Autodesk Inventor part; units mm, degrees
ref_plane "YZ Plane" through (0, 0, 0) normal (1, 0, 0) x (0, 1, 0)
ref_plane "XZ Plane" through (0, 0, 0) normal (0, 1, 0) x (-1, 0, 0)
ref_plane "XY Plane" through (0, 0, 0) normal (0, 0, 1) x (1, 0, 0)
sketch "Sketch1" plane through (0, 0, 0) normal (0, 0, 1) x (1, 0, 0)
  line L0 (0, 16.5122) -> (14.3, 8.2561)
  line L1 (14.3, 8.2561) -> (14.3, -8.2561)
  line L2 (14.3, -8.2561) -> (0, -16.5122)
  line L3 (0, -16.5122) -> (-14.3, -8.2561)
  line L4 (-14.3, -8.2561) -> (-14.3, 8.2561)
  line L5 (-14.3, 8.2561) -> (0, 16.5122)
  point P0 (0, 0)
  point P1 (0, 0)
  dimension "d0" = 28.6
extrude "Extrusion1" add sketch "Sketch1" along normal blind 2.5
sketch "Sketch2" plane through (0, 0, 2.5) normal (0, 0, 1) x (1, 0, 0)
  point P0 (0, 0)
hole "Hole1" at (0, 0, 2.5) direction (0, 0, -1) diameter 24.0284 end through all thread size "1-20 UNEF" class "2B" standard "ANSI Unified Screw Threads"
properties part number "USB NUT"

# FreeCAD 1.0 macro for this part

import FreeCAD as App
import Part
import Sketcher
from FreeCAD import Vector
Q = App.Units.Quantity

doc = App.newDocument("Part")
params = doc.addObject("Spreadsheet::Sheet", "Params")
for row, (alias, value) in enumerate([
    ("pad1_length", "2.5 mm"),
    ("hole_diameter", "24.0284 mm"),
], start=1):
    params.set(f"A{row}", alias)
    params.set(f"B{row}", "=" + value)
    params.setAlias(f"B{row}", alias)

body = doc.addObject("PartDesign::Body", "Body")

# Sketch on XY plane
sketch1 = body.newObject("Sketcher::SketchObject", "Sketch")
sketch1.AttachmentSupport = (doc.getObject("XY_Plane"), [""])
sketch1.MapMode = "FlatFace"
sketch1.addGeometry([
    Part.LineSegment(Vector(14, 8, 0), Vector(0, 17, 0)),  # 0
    Part.LineSegment(Vector(0, 17, 0), Vector(-14, 8, 0)),  # 1
    Part.LineSegment(Vector(-14, 8, 0), Vector(-14, -8, 0)),  # 2
    Part.LineSegment(Vector(-14, -8, 0), Vector(0, -17, 0)),  # 3
    Part.LineSegment(Vector(0, -17, 0), Vector(14, -8, 0)),  # 4
    Part.LineSegment(Vector(14, -8, 0), Vector(14, 8, 0)),  # 5
], False)
sketch1.addConstraint([
    Sketcher.Constraint("Coincident", 0, 2, 1, 1),
    Sketcher.Constraint("Coincident", 1, 2, 2, 1),
    Sketcher.Constraint("Coincident", 2, 2, 3, 1),
    Sketcher.Constraint("Coincident", 3, 2, 4, 1),
    Sketcher.Constraint("Coincident", 4, 2, 5, 1),
    Sketcher.Constraint("Coincident", 5, 2, 0, 1),
    Sketcher.Constraint("Vertical", 2),
    Sketcher.Constraint("Vertical", 5),
    Sketcher.Constraint("Symmetric", 0, 2, 3, 2, -1, 1),
    Sketcher.Constraint("Symmetric", 1, 2, 4, 2, -1, 1),
    Sketcher.Constraint("PointOnObject", 0, 2, -2),
    Sketcher.Constraint("Parallel", 0, 3),
    Sketcher.Constraint("Horizontal", 2, 2, 4, 2),
    Sketcher.Constraint("DistanceX", 2, 2, 4, 2, 28.6),
    Sketcher.Constraint("Angle", 0, Q("150 deg")),
    Sketcher.Constraint("DistanceY", 2, 2, 2, 1, 16.5122),
])
pad1 = body.newObject("PartDesign::Pad", "Pad")
pad1.Profile = sketch1
pad1.setExpression("Length", "Params.pad1_length")

# Sketch on XY plane
sketch2 = body.newObject("Sketcher::SketchObject", "Sketch001")
sketch2.AttachmentSupport = (doc.getObject("XY_Plane"), [""])
sketch2.MapMode = "FlatFace"
sketch2.AttachmentOffset = App.Placement(Vector(0, 0, 2.5), App.Rotation())
sketch2.addGeometry(Part.Circle(Vector(0, 0, 0), Vector(0, 0, 1), 12), False)
sketch2.addConstraint([
    Sketcher.Constraint("Coincident", 0, 3, -1, 1),
    Sketcher.Constraint("Diameter", 0, 24.0284),
])
doc.recompute()
hole = body.newObject("PartDesign::Hole", "Hole")
hole.Profile = sketch2
hole.ThreadType = "None"
hole.setExpression("Diameter", "Params.hole_diameter")
hole.DepthType = "ThroughAll"

doc.recompute()
